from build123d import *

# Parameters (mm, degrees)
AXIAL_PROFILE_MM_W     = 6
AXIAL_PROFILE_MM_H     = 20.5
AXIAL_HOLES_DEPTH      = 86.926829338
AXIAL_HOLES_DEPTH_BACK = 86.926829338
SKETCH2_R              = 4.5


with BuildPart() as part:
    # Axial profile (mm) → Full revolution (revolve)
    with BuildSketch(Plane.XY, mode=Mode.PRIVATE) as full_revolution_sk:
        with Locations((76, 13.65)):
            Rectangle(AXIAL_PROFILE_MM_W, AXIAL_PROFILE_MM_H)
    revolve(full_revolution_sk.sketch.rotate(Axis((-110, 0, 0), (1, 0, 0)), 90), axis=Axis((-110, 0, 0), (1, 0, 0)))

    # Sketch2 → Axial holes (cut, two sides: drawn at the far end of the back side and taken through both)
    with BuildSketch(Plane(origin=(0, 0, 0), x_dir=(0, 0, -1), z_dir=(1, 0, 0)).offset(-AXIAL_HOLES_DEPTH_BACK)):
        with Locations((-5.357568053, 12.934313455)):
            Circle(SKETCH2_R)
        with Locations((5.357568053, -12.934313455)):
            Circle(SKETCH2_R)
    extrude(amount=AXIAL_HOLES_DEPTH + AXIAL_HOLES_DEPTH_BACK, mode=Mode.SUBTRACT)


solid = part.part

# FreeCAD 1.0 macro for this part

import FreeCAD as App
import Part
import Sketcher

doc = App.newDocument("Part")
body = doc.addObject("PartDesign::Body", "Body")

sketch1 = body.newObject("Sketcher::SketchObject", "Sketch")
sketch1.AttachmentSupport = (doc.getObject("XY_Plane"), [""])
sketch1.MapMode = "FlatFace"
sketch1.addGeometry(Part.LineSegment(App.Vector(73, 23.9, 0), App.Vector(73, 3.4, 0)), False)
sketch1.addGeometry(Part.LineSegment(App.Vector(73, 3.4, 0), App.Vector(79, 3.4, 0)), False)
sketch1.addGeometry(Part.LineSegment(App.Vector(79, 3.4, 0), App.Vector(79, 23.9, 0)), False)
sketch1.addGeometry(Part.LineSegment(App.Vector(79, 23.9, 0), App.Vector(73, 23.9, 0)), False)
sketch1.addConstraint(Sketcher.Constraint("Coincident", 0, 2, 1, 1))
sketch1.addConstraint(Sketcher.Constraint("Coincident", 1, 2, 2, 1))
sketch1.addConstraint(Sketcher.Constraint("Coincident", 2, 2, 3, 1))
sketch1.addConstraint(Sketcher.Constraint("Coincident", 3, 2, 0, 1))
sketch1.addConstraint(Sketcher.Constraint("Vertical", 0))
sketch1.addConstraint(Sketcher.Constraint("Horizontal", 1))
sketch1.addConstraint(Sketcher.Constraint("Vertical", 2))
sketch1.addConstraint(Sketcher.Constraint("Horizontal", 3))
sketch1.addConstraint(Sketcher.Constraint("DistanceX", 1, 1, 1, 2, 6.0))
sketch1.addConstraint(Sketcher.Constraint("DistanceY", 0, 2, 0, 1, 20.5))
sketch1.addConstraint(Sketcher.Constraint("DistanceX", -1, 1, 0, 2, 73.0))
sketch1.addConstraint(Sketcher.Constraint("DistanceY", -1, 1, 0, 2, 3.4))
revolution = body.newObject("PartDesign::Revolution", "Revolution")
revolution.Profile = sketch1
revolution.ReferenceAxis = (sketch1, ["H_Axis"])
revolution.Angle = 360

sketch2 = body.newObject("Sketcher::SketchObject", "Sketch001")
sketch2.AttachmentSupport = (doc.getObject("YZ_Plane"), [""])
sketch2.MapMode = "FlatFace"
sketch2.addGeometry(Part.Circle(App.Vector(12.934313, 5.357568, 0), App.Vector(0, 0, 1), 4.5), False)
sketch2.addGeometry(Part.Circle(App.Vector(-12.934313, -5.357568, 0), App.Vector(0, 0, 1), 4.5), False)
sketch2.addConstraint(Sketcher.Constraint("Equal", 0, 1))
sketch2.addConstraint(Sketcher.Constraint("Symmetric", 0, 3, 1, 3, -1, 1))
sketch2.addConstraint(Sketcher.Constraint("Diameter", 0, 9.0))
sketch2.addConstraint(Sketcher.Constraint("DistanceY", -1, 1, 0, 3, 5.357568))
sketch2.addConstraint(Sketcher.Constraint("DistanceX", -1, 1, 0, 3, 12.934313))
pocket1 = body.newObject("PartDesign::Pocket", "Pocket")
pocket1.Profile = sketch2
pocket1.Type = "ThroughAll"
pocket1.Midplane = True

doc.recompute()
